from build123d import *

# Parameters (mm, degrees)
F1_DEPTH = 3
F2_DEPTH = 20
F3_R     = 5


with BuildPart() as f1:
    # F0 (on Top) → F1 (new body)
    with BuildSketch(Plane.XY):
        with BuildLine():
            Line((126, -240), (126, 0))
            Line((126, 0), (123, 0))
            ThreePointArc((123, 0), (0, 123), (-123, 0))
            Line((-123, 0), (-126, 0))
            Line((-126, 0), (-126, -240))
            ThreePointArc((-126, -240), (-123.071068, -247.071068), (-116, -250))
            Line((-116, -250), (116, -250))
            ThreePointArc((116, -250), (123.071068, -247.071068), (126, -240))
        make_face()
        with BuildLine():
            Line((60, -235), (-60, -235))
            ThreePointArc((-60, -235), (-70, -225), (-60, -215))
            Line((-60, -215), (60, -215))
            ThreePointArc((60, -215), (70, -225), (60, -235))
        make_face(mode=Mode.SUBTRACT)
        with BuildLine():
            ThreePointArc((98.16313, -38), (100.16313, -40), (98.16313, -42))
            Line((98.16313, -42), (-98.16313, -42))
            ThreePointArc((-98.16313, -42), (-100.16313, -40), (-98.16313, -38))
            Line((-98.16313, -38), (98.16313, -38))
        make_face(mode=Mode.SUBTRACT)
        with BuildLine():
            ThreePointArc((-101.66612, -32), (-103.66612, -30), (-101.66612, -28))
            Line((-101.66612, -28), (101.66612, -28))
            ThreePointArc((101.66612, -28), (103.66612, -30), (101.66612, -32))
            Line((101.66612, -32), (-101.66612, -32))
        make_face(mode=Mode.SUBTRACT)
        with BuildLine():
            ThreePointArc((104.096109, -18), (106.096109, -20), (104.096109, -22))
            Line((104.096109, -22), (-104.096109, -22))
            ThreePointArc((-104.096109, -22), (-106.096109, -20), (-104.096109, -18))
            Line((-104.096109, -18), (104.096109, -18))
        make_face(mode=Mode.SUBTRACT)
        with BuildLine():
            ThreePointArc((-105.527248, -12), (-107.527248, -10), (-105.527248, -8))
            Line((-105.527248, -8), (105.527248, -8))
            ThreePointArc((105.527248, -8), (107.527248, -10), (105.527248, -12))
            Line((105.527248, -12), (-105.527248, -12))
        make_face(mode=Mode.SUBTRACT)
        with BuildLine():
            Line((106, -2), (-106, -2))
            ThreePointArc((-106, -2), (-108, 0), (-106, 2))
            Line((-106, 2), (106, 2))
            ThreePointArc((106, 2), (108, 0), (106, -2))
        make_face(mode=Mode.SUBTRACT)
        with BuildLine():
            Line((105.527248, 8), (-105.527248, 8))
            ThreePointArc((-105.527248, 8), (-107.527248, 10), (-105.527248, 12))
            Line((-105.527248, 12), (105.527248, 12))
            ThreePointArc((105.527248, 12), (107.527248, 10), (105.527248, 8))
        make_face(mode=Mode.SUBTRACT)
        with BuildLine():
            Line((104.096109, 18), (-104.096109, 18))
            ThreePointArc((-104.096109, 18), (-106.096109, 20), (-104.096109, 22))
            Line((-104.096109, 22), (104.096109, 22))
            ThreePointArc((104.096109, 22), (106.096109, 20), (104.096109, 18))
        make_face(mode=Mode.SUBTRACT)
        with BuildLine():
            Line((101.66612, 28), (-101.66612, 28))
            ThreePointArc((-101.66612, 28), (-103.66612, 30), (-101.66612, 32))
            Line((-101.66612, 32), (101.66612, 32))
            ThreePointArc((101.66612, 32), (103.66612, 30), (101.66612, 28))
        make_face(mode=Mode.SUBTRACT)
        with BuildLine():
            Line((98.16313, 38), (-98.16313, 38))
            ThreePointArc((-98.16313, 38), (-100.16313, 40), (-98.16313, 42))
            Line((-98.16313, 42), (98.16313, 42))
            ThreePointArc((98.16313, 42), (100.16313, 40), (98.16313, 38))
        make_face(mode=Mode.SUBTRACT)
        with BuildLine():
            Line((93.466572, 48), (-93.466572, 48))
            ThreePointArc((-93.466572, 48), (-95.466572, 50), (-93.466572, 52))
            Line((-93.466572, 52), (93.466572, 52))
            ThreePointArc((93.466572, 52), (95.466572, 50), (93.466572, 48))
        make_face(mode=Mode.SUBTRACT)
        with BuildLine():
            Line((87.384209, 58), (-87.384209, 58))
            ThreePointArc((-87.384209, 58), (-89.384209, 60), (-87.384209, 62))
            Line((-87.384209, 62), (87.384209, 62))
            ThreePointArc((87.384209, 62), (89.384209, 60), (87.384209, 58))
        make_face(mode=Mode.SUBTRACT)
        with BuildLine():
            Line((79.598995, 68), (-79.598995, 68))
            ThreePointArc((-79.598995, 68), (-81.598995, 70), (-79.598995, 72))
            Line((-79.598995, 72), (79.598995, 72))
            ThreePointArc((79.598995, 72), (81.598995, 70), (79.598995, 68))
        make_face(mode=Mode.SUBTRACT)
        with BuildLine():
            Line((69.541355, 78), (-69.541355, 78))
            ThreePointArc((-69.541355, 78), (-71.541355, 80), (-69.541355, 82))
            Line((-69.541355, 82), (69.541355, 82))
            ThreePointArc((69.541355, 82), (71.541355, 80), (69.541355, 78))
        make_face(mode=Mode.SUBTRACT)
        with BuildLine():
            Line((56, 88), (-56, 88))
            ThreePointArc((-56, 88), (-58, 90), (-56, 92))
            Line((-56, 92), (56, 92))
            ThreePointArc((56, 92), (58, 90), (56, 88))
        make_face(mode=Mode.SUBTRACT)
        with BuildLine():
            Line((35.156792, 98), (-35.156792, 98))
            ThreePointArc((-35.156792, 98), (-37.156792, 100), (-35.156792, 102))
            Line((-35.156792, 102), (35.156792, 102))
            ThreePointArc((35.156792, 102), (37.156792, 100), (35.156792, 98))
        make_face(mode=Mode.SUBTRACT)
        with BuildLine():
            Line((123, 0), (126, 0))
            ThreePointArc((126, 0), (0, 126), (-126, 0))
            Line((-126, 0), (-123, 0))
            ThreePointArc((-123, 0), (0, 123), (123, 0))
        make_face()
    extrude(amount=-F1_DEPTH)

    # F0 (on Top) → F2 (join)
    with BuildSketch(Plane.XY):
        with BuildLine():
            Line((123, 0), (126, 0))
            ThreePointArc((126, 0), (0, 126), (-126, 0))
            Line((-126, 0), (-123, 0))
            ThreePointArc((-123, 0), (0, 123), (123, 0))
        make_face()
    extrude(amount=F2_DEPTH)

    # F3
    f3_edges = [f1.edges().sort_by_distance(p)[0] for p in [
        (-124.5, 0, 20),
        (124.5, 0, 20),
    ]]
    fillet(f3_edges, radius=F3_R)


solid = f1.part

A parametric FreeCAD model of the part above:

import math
import FreeCAD as App
import Part
import Sketcher
Q = App.Units.Quantity


def edges_at(feature, points):
    """Names of the edges that pass closest to the given points."""
    edges = feature.Shape.Edges
    near = lambda p: min(range(len(edges)), key=lambda i: edges[i].distToShape(Part.Vertex(*p))[0])
    return sorted({f"Edge{near(p) + 1}" for p in points})

doc = App.newDocument("Part")
body = doc.addObject("PartDesign::Body", "Body")

sketch1 = body.newObject("Sketcher::SketchObject", "Sketch")
sketch1.AttachmentSupport = (doc.getObject("XY_Plane"), [""])
sketch1.MapMode = "FlatFace"
sketch1.addGeometry([
    Part.LineSegment(App.Vector(126, -240, 0), App.Vector(126, 0, 0)),
    Part.ArcOfCircle(Part.Circle(App.Vector(0, 0, 0), App.Vector(0, 0, 1), 126), math.radians(0), math.radians(180)),
    Part.LineSegment(App.Vector(-126, 0, 0), App.Vector(-126, -240, 0)),
    Part.ArcOfCircle(Part.Circle(App.Vector(-116, -240, 0), App.Vector(0, 0, 1), 10), math.radians(180), math.radians(270)),
    Part.LineSegment(App.Vector(-116, -250, 0), App.Vector(116, -250, 0)),
    Part.ArcOfCircle(Part.Circle(App.Vector(116, -240, 0), App.Vector(0, 0, 1), 10), math.radians(-90), math.radians(0)),
    Part.ArcOfCircle(Part.Circle(App.Vector(60, -225, 0), App.Vector(0, 0, 1), 10), math.radians(-90), math.radians(90)),
    Part.LineSegment(App.Vector(60, -235, 0), App.Vector(-60, -235, 0)),
    Part.ArcOfCircle(Part.Circle(App.Vector(-60, -225, 0), App.Vector(0, 0, 1), 10), math.radians(90), math.radians(270)),
    Part.LineSegment(App.Vector(-60, -215, 0), App.Vector(60, -215, 0)),
    Part.LineSegment(App.Vector(-98.2, -38, 0), App.Vector(98.2, -38, 0)),
    Part.ArcOfCircle(Part.Circle(App.Vector(98.2, -40, 0), App.Vector(0, 0, 1), 2), math.radians(-90), math.radians(90)),
    Part.LineSegment(App.Vector(98.2, -42, 0), App.Vector(-98.2, -42, 0)),
    Part.ArcOfCircle(Part.Circle(App.Vector(-98.2, -40, 0), App.Vector(0, 0, 1), 2), math.radians(90), math.radians(270)),
    Part.LineSegment(App.Vector(101.7, -32, 0), App.Vector(-101.7, -32, 0)),
    Part.ArcOfCircle(Part.Circle(App.Vector(-101.7, -30, 0), App.Vector(0, 0, 1), 2), math.radians(90), math.radians(270)),
    Part.LineSegment(App.Vector(-101.7, -28, 0), App.Vector(101.7, -28, 0)),
    Part.ArcOfCircle(Part.Circle(App.Vector(101.7, -30, 0), App.Vector(0, 0, 1), 2), math.radians(-90), math.radians(90)),
    Part.LineSegment(App.Vector(-104.1, -18, 0), App.Vector(104.1, -18, 0)),
    Part.ArcOfCircle(Part.Circle(App.Vector(104.1, -20, 0), App.Vector(0, 0, 1), 2), math.radians(-90), math.radians(90)),
    Part.LineSegment(App.Vector(104.1, -22, 0), App.Vector(-104.1, -22, 0)),
    Part.ArcOfCircle(Part.Circle(App.Vector(-104.1, -20, 0), App.Vector(0, 0, 1), 2), math.radians(90), math.radians(270)),
    Part.LineSegment(App.Vector(105.5, -12, 0), App.Vector(-105.5, -12, 0)),
    Part.ArcOfCircle(Part.Circle(App.Vector(-105.5, -10, 0), App.Vector(0, 0, 1), 2), math.radians(90), math.radians(270)),
    Part.LineSegment(App.Vector(-105.5, -8, 0), App.Vector(105.5, -8, 0)),
    Part.ArcOfCircle(Part.Circle(App.Vector(105.5, -10, 0), App.Vector(0, 0, 1), 2), math.radians(-90), math.radians(90)),
    Part.ArcOfCircle(Part.Circle(App.Vector(106, 0, 0), App.Vector(0, 0, 1), 2), math.radians(-90), math.radians(90)),
    Part.LineSegment(App.Vector(106, -2, 0), App.Vector(-106, -2, 0)),
    Part.ArcOfCircle(Part.Circle(App.Vector(-106, 0, 0), App.Vector(0, 0, 1), 2), math.radians(90), math.radians(270)),
    Part.LineSegment(App.Vector(-106, 2, 0), App.Vector(106, 2, 0)),
    Part.ArcOfCircle(Part.Circle(App.Vector(105.5, 10, 0), App.Vector(0, 0, 1), 2), math.radians(-90), math.radians(90)),
    Part.LineSegment(App.Vector(105.5, 8, 0), App.Vector(-105.5, 8, 0)),
    Part.ArcOfCircle(Part.Circle(App.Vector(-105.5, 10, 0), App.Vector(0, 0, 1), 2), math.radians(90), math.radians(270)),
    Part.LineSegment(App.Vector(-105.5, 12, 0), App.Vector(105.5, 12, 0)),
    Part.ArcOfCircle(Part.Circle(App.Vector(104.1, 20, 0), App.Vector(0, 0, 1), 2), math.radians(-90), math.radians(90)),
    Part.LineSegment(App.Vector(104.1, 18, 0), App.Vector(-104.1, 18, 0)),
    Part.ArcOfCircle(Part.Circle(App.Vector(-104.1, 20, 0), App.Vector(0, 0, 1), 2), math.radians(90), math.radians(270)),
    Part.LineSegment(App.Vector(-104.1, 22, 0), App.Vector(104.1, 22, 0)),
    Part.ArcOfCircle(Part.Circle(App.Vector(101.7, 30, 0), App.Vector(0, 0, 1), 2), math.radians(-90), math.radians(90)),
    Part.LineSegment(App.Vector(101.7, 28, 0), App.Vector(-101.7, 28, 0)),
    Part.ArcOfCircle(Part.Circle(App.Vector(-101.7, 30, 0), App.Vector(0, 0, 1), 2), math.radians(90), math.radians(270)),
    Part.LineSegment(App.Vector(-101.7, 32, 0), App.Vector(101.7, 32, 0)),
    Part.ArcOfCircle(Part.Circle(App.Vector(98.2, 40, 0), App.Vector(0, 0, 1), 2), math.radians(-90), math.radians(90)),
    Part.LineSegment(App.Vector(98.2, 38, 0), App.Vector(-98.2, 38, 0)),
    Part.ArcOfCircle(Part.Circle(App.Vector(-98.2, 40, 0), App.Vector(0, 0, 1), 2), math.radians(90), math.radians(270)),
    Part.LineSegment(App.Vector(-98.2, 42, 0), App.Vector(98.2, 42, 0)),
    Part.ArcOfCircle(Part.Circle(App.Vector(93.5, 50, 0), App.Vector(0, 0, 1), 2), math.radians(-90), math.radians(90)),
    Part.LineSegment(App.Vector(93.5, 48, 0), App.Vector(-93.5, 48, 0)),
    Part.ArcOfCircle(Part.Circle(App.Vector(-93.5, 50, 0), App.Vector(0, 0, 1), 2), math.radians(90), math.radians(270)),
    Part.LineSegment(App.Vector(-93.5, 52, 0), App.Vector(93.5, 52, 0)),
    Part.ArcOfCircle(Part.Circle(App.Vector(87.4, 60, 0), App.Vector(0, 0, 1), 2), math.radians(-90), math.radians(90)),
    Part.LineSegment(App.Vector(87.4, 58, 0), App.Vector(-87.4, 58, 0)),
    Part.ArcOfCircle(Part.Circle(App.Vector(-87.4, 60, 0), App.Vector(0, 0, 1), 2), math.radians(90), math.radians(270)),
    Part.LineSegment(App.Vector(-87.4, 62, 0), App.Vector(87.4, 62, 0)),
    Part.ArcOfCircle(Part.Circle(App.Vector(79.6, 70, 0), App.Vector(0, 0, 1), 2), math.radians(-90), math.radians(90)),
    Part.LineSegment(App.Vector(79.6, 68, 0), App.Vector(-79.6, 68, 0)),
    Part.ArcOfCircle(Part.Circle(App.Vector(-79.6, 70, 0), App.Vector(0, 0, 1), 2), math.radians(90), math.radians(270)),
    Part.LineSegment(App.Vector(-79.6, 72, 0), App.Vector(79.6, 72, 0)),
    Part.ArcOfCircle(Part.Circle(App.Vector(69.5, 80, 0), App.Vector(0, 0, 1), 2), math.radians(-90), math.radians(90)),
    Part.LineSegment(App.Vector(69.5, 78, 0), App.Vector(-69.5, 78, 0)),
    Part.ArcOfCircle(Part.Circle(App.Vector(-69.5, 80, 0), App.Vector(0, 0, 1), 2), math.radians(90), math.radians(270)),
    Part.LineSegment(App.Vector(-69.5, 82, 0), App.Vector(69.5, 82, 0)),
    Part.ArcOfCircle(Part.Circle(App.Vector(56, 90, 0), App.Vector(0, 0, 1), 2), math.radians(-90), math.radians(90)),
    Part.LineSegment(App.Vector(56, 88, 0), App.Vector(-56, 88, 0)),
    Part.ArcOfCircle(Part.Circle(App.Vector(-56, 90, 0), App.Vector(0, 0, 1), 2), math.radians(90), math.radians(270)),
    Part.LineSegment(App.Vector(-56, 92, 0), App.Vector(56, 92, 0)),
    Part.ArcOfCircle(Part.Circle(App.Vector(35.2, 100, 0), App.Vector(0, 0, 1), 2), math.radians(-90), math.radians(90)),
    Part.LineSegment(App.Vector(35.2, 98, 0), App.Vector(-35.2, 98, 0)),
    Part.ArcOfCircle(Part.Circle(App.Vector(-35.2, 100, 0), App.Vector(0, 0, 1), 2), math.radians(90), math.radians(270)),
    Part.LineSegment(App.Vector(-35.2, 102, 0), App.Vector(35.2, 102, 0)),
], False)
sketch1.addConstraint([
    Sketcher.Constraint("Tangent", 0, 2, 1, 1),
    Sketcher.Constraint("Tangent", 1, 2, 2, 1),
    Sketcher.Constraint("Tangent", 2, 2, 3, 1),
    Sketcher.Constraint("Tangent", 3, 2, 4, 1),
    Sketcher.Constraint("Tangent", 4, 2, 5, 1),
    Sketcher.Constraint("Tangent", 5, 2, 0, 1),
    Sketcher.Constraint("Tangent", 6, 1, 7, 1),
    Sketcher.Constraint("Tangent", 7, 2, 8, 2),
    Sketcher.Constraint("Tangent", 8, 1, 9, 1),
    Sketcher.Constraint("Tangent", 9, 2, 6, 2),
    Sketcher.Constraint("Tangent", 10, 2, 11, 2),
    Sketcher.Constraint("Tangent", 11, 1, 12, 1),
    Sketcher.Constraint("Tangent", 12, 2, 13, 2),
    Sketcher.Constraint("Tangent", 13, 1, 10, 1),
    Sketcher.Constraint("Tangent", 14, 2, 15, 2),
    Sketcher.Constraint("Tangent", 15, 1, 16, 1),
    Sketcher.Constraint("Tangent", 16, 2, 17, 2),
    Sketcher.Constraint("Tangent", 17, 1, 14, 1),
    Sketcher.Constraint("Tangent", 18, 2, 19, 2),
    Sketcher.Constraint("Tangent", 19, 1, 20, 1),
    Sketcher.Constraint("Tangent", 20, 2, 21, 2),
    Sketcher.Constraint("Tangent", 21, 1, 18, 1),
    Sketcher.Constraint("Tangent", 22, 2, 23, 2),
    Sketcher.Constraint("Tangent", 23, 1, 24, 1),
    Sketcher.Constraint("Tangent", 24, 2, 25, 2),
    Sketcher.Constraint("Tangent", 25, 1, 22, 1),
    Sketcher.Constraint("Tangent", 26, 1, 27, 1),
    Sketcher.Constraint("Tangent", 27, 2, 28, 2),
    Sketcher.Constraint("Tangent", 28, 1, 29, 1),
    Sketcher.Constraint("Tangent", 29, 2, 26, 2),
    Sketcher.Constraint("Tangent", 30, 1, 31, 1),
    Sketcher.Constraint("Tangent", 31, 2, 32, 2),
    Sketcher.Constraint("Tangent", 32, 1, 33, 1),
    Sketcher.Constraint("Tangent", 33, 2, 30, 2),
    Sketcher.Constraint("Tangent", 34, 1, 35, 1),
    Sketcher.Constraint("Tangent", 35, 2, 36, 2),
    Sketcher.Constraint("Tangent", 36, 1, 37, 1),
    Sketcher.Constraint("Tangent", 37, 2, 34, 2),
    Sketcher.Constraint("Tangent", 38, 1, 39, 1),
    Sketcher.Constraint("Tangent", 39, 2, 40, 2),
    Sketcher.Constraint("Tangent", 40, 1, 41, 1),
    Sketcher.Constraint("Tangent", 41, 2, 38, 2),
    Sketcher.Constraint("Tangent", 42, 1, 43, 1),
    Sketcher.Constraint("Tangent", 43, 2, 44, 2),
    Sketcher.Constraint("Tangent", 44, 1, 45, 1),
    Sketcher.Constraint("Tangent", 45, 2, 42, 2),
    Sketcher.Constraint("Tangent", 46, 1, 47, 1),
    Sketcher.Constraint("Tangent", 47, 2, 48, 2),
    Sketcher.Constraint("Tangent", 48, 1, 49, 1),
    Sketcher.Constraint("Tangent", 49, 2, 46, 2),
    Sketcher.Constraint("Tangent", 50, 1, 51, 1),
    Sketcher.Constraint("Tangent", 51, 2, 52, 2),
    Sketcher.Constraint("Tangent", 52, 1, 53, 1),
    Sketcher.Constraint("Tangent", 53, 2, 50, 2),
    Sketcher.Constraint("Tangent", 54, 1, 55, 1),
    Sketcher.Constraint("Tangent", 55, 2, 56, 2),
    Sketcher.Constraint("Tangent", 56, 1, 57, 1),
    Sketcher.Constraint("Tangent", 57, 2, 54, 2),
    Sketcher.Constraint("Tangent", 58, 1, 59, 1),
    Sketcher.Constraint("Tangent", 59, 2, 60, 2),
    Sketcher.Constraint("Tangent", 60, 1, 61, 1),
    Sketcher.Constraint("Tangent", 61, 2, 58, 2),
    Sketcher.Constraint("Tangent", 62, 1, 63, 1),
    Sketcher.Constraint("Tangent", 63, 2, 64, 2),
    Sketcher.Constraint("Tangent", 64, 1, 65, 1),
    Sketcher.Constraint("Tangent", 65, 2, 62, 2),
    Sketcher.Constraint("Tangent", 66, 1, 67, 1),
    Sketcher.Constraint("Tangent", 67, 2, 68, 2),
    Sketcher.Constraint("Tangent", 68, 1, 69, 1),
    Sketcher.Constraint("Tangent", 69, 2, 66, 2),
    Sketcher.Constraint("Vertical", 0),
    Sketcher.Constraint("Vertical", 2),
    Sketcher.Constraint("Horizontal", 4),
    Sketcher.Constraint("Horizontal", 7),
    Sketcher.Constraint("Horizontal", 9),
    Sketcher.Constraint("Horizontal", 10),
    Sketcher.Constraint("Horizontal", 12),
    Sketcher.Constraint("Horizontal", 14),
    Sketcher.Constraint("Horizontal", 16),
    Sketcher.Constraint("Horizontal", 18),
    Sketcher.Constraint("Horizontal", 20),
    Sketcher.Constraint("Horizontal", 22),
    Sketcher.Constraint("Horizontal", 24),
    Sketcher.Constraint("Horizontal", 27),
    Sketcher.Constraint("Horizontal", 29),
    Sketcher.Constraint("Horizontal", 31),
    Sketcher.Constraint("Horizontal", 33),
    Sketcher.Constraint("Horizontal", 35),
    Sketcher.Constraint("Horizontal", 37),
    Sketcher.Constraint("Horizontal", 39),
    Sketcher.Constraint("Horizontal", 41),
    Sketcher.Constraint("Horizontal", 43),
    Sketcher.Constraint("Horizontal", 45),
    Sketcher.Constraint("Horizontal", 47),
    Sketcher.Constraint("Horizontal", 49),
    Sketcher.Constraint("Horizontal", 51),
    Sketcher.Constraint("Horizontal", 53),
    Sketcher.Constraint("Horizontal", 55),
    Sketcher.Constraint("Horizontal", 57),
    Sketcher.Constraint("Horizontal", 59),
    Sketcher.Constraint("Horizontal", 61),
    Sketcher.Constraint("Horizontal", 63),
    Sketcher.Constraint("Horizontal", 65),
    Sketcher.Constraint("Horizontal", 67),
    Sketcher.Constraint("Horizontal", 69),
    Sketcher.Constraint("Coincident", 1, 3, -1, 1),
    Sketcher.Constraint("Equal", 3, 5),
    Sketcher.Constraint("Equal", 5, 6),
    Sketcher.Constraint("Equal", 13, 15),
    Sketcher.Constraint("Equal", 17, 19),
    Sketcher.Constraint("Equal", 21, 23),
    Sketcher.Constraint("Equal", 25, 26),
    Sketcher.Constraint("Equal", 28, 30),
    Sketcher.Constraint("Equal", 32, 34),
    Sketcher.Constraint("Equal", 36, 38),
    Sketcher.Constraint("Equal", 40, 42),
    Sketcher.Constraint("Equal", 44, 46),
    Sketcher.Constraint("Equal", 48, 50),
    Sketcher.Constraint("Equal", 52, 54),
    Sketcher.Constraint("Equal", 56, 58),
    Sketcher.Constraint("Equal", 60, 62),
    Sketcher.Constraint("Equal", 64, 66),
    Sketcher.Constraint("Symmetric", 26, 3, 28, 3, -1, 1),
    Sketcher.Constraint("Symmetric", 23, 3, 30, 3, -1, 1),
    Sketcher.Constraint("Symmetric", 21, 3, 34, 3, -1, 1),
    Sketcher.Constraint("Symmetric", 15, 3, 38, 3, -1, 1),
    Sketcher.Constraint("Symmetric", 13, 3, 42, 3, -1, 1),
    Sketcher.Constraint("Vertical", 25, 3, 30, 3),
    Sketcher.Constraint("Vertical", 23, 3, 32, 3),
    Sketcher.Constraint("Vertical", 19, 3, 34, 3),
    Sketcher.Constraint("Vertical", 21, 3, 36, 3),
    Sketcher.Constraint("Vertical", 17, 3, 38, 3),
    Sketcher.Constraint("Vertical", 15, 3, 40, 3),
    Sketcher.Constraint("Vertical", 11, 3, 42, 3),
    Sketcher.Constraint("Vertical", 13, 3, 44, 3),
    Sketcher.Constraint("Radius", 1, Q("126 mm")),
    Sketcher.Constraint("Radius", 3, Q("9.999999 mm")),
    Sketcher.Constraint("Radius", 11, Q("2 mm")),
    Sketcher.Constraint("DistanceX", 7, 2, 7, 1, Q("120 mm")),
    Sketcher.Constraint("DistanceX", 27, 2, 27, 1, Q("212 mm")),
    Sketcher.Constraint("DistanceX", 63, 2, 63, 1, Q("112 mm")),
    Sketcher.Constraint("DistanceY", 0, 1, 0, 2, Q("240 mm")),
    Sketcher.Constraint("DistanceX", -1, 1, 6, 3, Q("60 mm")),
    Sketcher.Constraint("DistanceY", 6, 3, -1, 1, Q("225 mm")),
    Sketcher.Constraint("DistanceY", 11, 3, -1, 1, Q("40 mm")),
    Sketcher.Constraint("DistanceY", 15, 3, -1, 1, Q("30 mm")),
    Sketcher.Constraint("DistanceY", 19, 3, -1, 1, Q("20 mm")),
    Sketcher.Constraint("DistanceY", 23, 3, -1, 1, Q("10 mm")),
    Sketcher.Constraint("DistanceY", -1, 1, 46, 3, Q("50 mm")),
    Sketcher.Constraint("DistanceY", -1, 1, 50, 3, Q("60 mm")),
    Sketcher.Constraint("DistanceY", -1, 1, 54, 3, Q("70 mm")),
    Sketcher.Constraint("DistanceY", -1, 1, 58, 3, Q("80 mm")),
    Sketcher.Constraint("DistanceX", -1, 1, 62, 3, Q("56 mm")),
    Sketcher.Constraint("DistanceY", -1, 1, 62, 3, Q("90 mm")),
    Sketcher.Constraint("DistanceY", -1, 1, 66, 3, Q("100 mm")),
    Sketcher.Constraint("DistanceX", 10, 1, 10, 2, Q("196.32626 mm")),
    Sketcher.Constraint("DistanceX", 14, 2, 14, 1, Q("203.33224 mm")),
    Sketcher.Constraint("DistanceX", 18, 1, 18, 2, Q("208.192218 mm")),
    Sketcher.Constraint("DistanceX", 51, 2, 51, 1, Q("174.768418 mm")),
    Sketcher.Constraint("DistanceX", 55, 2, 55, 1, Q("159.19799 mm")),
    Sketcher.Constraint("DistanceX", 59, 2, 59, 1, Q("139.08271 mm")),
    Sketcher.Constraint("DistanceX", 22, 2, 22, 1, Q("211.054496 mm")),
    Sketcher.Constraint("DistanceX", 47, 2, 47, 1, Q("186.933144 mm")),
    Sketcher.Constraint("DistanceX", 67, 2, 67, 1, Q("70.313584 mm")),
    Sketcher.Constraint("DistanceX", -1, 1, 46, 3, Q("93.466572 mm")),
    Sketcher.Constraint("DistanceX", -1, 1, 50, 3, Q("87.384209 mm")),
    Sketcher.Constraint("DistanceX", -1, 1, 54, 3, Q("79.598995 mm")),
    Sketcher.Constraint("DistanceX", -1, 1, 58, 3, Q("69.541355 mm")),
    Sketcher.Constraint("DistanceX", -1, 1, 66, 3, Q("35.156792 mm")),
])
pad1 = body.newObject("PartDesign::Pad", "Pad")
pad1.Profile = sketch1
pad1.Length = 3
pad1.Reversed = True

sketch2 = body.newObject("Sketcher::SketchObject", "Sketch001")
sketch2.AttachmentSupport = (doc.getObject("XY_Plane"), [""])
sketch2.MapMode = "FlatFace"
sketch2.addGeometry([
    Part.LineSegment(App.Vector(123, 0, 0), App.Vector(126, 0, 0)),
    Part.ArcOfCircle(Part.Circle(App.Vector(0, 0, 0), App.Vector(0, 0, 1), 126), math.radians(0), math.radians(180)),
    Part.LineSegment(App.Vector(-126, 0, 0), App.Vector(-123, 0, 0)),
    Part.ArcOfCircle(Part.Circle(App.Vector(0, 0, 0), App.Vector(0, 0, 1), 123), math.radians(0), math.radians(180)),
], False)
sketch2.addConstraint([
    Sketcher.Constraint("Coincident", 0, 2, 1, 1),
    Sketcher.Constraint("Coincident", 1, 2, 2, 1),
    Sketcher.Constraint("Coincident", 2, 2, 3, 2),
    Sketcher.Constraint("Coincident", 3, 1, 0, 1),
    Sketcher.Constraint("Horizontal", 0),
    Sketcher.Constraint("Horizontal", 2),
    Sketcher.Constraint("Coincident", 1, 3, -1, 1),
    Sketcher.Constraint("Coincident", 3, 3, -1, 1),
    Sketcher.Constraint("PointOnObject", 0, 2, -1),
    Sketcher.Constraint("PointOnObject", 1, 2, -1),
    Sketcher.Constraint("Radius", 1, Q("126 mm")),
    Sketcher.Constraint("Radius", 3, Q("123 mm")),
])
pad2 = body.newObject("PartDesign::Pad", "Pad001")
pad2.Profile = sketch2
pad2.Length = 20
doc.recompute()

fillet = body.newObject("PartDesign::Fillet", "Fillet")
fillet.Base = (pad2, edges_at(pad2, [(-124.5, 0, 20), (124.5, 0, 20)]))
fillet.Radius = 5

doc.recompute()
